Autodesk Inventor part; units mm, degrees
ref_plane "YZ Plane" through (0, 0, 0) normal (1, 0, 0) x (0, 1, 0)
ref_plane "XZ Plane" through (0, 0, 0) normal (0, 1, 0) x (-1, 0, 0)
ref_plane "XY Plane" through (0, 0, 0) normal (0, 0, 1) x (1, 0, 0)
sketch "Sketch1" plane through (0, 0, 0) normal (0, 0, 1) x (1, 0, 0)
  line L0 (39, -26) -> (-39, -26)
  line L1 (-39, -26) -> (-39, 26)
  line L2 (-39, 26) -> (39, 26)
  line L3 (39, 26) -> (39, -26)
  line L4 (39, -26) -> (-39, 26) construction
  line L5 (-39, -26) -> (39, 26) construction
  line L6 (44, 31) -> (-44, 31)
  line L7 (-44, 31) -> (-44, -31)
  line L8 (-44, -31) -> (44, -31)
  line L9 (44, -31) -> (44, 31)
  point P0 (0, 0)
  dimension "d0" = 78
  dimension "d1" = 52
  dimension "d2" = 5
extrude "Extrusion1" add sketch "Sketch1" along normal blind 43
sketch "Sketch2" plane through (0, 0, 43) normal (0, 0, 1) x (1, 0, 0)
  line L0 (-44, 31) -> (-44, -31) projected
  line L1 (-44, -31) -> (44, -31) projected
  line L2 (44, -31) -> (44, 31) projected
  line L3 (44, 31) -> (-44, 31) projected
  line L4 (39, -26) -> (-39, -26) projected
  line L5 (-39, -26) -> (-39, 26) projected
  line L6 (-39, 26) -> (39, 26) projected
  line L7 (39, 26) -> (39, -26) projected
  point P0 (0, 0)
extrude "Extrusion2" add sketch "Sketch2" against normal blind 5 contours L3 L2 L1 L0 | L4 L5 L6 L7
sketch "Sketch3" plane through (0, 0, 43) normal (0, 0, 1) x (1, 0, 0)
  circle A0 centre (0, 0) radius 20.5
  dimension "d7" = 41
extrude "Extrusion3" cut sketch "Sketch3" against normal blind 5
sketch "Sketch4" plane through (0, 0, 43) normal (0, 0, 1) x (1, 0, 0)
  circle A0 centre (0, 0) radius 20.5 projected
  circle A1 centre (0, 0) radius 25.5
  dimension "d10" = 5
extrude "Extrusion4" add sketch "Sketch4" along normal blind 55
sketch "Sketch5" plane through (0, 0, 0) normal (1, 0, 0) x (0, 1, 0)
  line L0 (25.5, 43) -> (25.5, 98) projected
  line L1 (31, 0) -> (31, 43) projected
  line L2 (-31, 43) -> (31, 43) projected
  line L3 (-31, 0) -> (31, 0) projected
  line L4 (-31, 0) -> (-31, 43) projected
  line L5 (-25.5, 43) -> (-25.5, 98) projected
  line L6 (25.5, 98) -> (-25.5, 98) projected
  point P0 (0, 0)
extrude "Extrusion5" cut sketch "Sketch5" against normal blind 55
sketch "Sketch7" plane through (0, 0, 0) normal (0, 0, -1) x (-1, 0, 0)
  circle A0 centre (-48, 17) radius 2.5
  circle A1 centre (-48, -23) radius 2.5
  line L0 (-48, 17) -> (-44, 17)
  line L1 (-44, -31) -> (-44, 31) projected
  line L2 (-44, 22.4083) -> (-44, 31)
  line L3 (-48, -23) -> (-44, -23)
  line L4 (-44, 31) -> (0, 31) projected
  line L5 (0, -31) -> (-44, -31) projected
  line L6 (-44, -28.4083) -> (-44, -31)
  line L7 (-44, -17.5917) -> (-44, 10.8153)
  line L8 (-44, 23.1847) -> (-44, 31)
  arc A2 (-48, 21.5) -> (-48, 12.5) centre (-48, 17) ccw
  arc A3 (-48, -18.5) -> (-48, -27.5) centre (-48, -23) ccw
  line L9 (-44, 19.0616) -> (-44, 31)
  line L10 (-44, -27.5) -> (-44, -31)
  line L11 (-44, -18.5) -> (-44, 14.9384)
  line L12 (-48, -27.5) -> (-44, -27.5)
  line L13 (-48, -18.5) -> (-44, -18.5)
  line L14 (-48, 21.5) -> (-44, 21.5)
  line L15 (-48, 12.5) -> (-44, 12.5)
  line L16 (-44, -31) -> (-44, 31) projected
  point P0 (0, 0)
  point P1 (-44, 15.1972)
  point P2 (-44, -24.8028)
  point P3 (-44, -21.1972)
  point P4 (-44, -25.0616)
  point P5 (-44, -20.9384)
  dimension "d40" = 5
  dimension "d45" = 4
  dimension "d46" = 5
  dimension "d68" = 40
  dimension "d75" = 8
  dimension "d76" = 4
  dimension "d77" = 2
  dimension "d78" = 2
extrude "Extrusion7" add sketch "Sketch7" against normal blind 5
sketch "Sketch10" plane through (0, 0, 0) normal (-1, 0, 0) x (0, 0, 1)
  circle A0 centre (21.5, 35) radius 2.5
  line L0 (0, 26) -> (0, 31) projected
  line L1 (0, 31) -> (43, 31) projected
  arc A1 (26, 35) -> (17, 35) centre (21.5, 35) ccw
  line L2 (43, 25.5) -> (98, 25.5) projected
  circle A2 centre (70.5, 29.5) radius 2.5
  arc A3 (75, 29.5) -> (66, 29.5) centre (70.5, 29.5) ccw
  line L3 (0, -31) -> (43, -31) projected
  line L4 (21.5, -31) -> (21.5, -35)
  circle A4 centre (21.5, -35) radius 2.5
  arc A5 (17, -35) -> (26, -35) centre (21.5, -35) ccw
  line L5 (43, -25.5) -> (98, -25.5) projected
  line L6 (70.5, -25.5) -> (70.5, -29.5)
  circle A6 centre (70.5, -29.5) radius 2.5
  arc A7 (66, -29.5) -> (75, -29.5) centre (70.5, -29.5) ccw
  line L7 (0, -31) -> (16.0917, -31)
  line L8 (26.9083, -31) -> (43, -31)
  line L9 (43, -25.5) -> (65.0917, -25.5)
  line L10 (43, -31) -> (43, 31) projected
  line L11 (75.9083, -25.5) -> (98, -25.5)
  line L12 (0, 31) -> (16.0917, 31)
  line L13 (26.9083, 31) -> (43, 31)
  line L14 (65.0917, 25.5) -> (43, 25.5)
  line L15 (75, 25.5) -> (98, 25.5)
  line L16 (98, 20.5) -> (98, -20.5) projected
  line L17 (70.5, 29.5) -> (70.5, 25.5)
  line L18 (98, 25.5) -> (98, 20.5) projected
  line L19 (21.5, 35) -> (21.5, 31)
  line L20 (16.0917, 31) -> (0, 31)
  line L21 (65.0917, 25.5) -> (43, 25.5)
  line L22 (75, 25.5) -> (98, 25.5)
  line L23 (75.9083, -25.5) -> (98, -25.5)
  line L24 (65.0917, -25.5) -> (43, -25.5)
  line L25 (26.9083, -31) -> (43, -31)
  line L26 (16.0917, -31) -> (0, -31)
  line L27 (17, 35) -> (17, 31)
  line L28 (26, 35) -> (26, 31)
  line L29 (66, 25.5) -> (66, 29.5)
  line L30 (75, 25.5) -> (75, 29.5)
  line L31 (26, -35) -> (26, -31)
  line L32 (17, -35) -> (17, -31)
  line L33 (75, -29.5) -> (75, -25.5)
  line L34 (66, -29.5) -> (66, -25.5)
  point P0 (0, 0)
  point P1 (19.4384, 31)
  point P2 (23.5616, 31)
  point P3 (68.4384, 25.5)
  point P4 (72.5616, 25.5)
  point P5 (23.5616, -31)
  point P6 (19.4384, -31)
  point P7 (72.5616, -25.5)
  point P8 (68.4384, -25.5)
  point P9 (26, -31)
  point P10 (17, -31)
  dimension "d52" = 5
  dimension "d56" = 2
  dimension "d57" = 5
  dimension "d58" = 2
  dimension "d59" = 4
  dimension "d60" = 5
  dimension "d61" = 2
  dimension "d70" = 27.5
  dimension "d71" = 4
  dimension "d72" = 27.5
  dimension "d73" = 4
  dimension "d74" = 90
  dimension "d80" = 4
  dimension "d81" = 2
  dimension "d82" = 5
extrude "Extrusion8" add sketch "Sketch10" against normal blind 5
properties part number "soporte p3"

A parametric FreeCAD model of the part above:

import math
import FreeCAD as App
import Part
import Sketcher
Q = App.Units.Quantity

doc = App.newDocument("Part")
body = doc.addObject("PartDesign::Body", "Body")
body.AllowCompound = True

sketch1 = body.newObject("Sketcher::SketchObject", "Sketch")
sketch1.AttachmentSupport = (doc.getObject("XY_Plane"), [""])
sketch1.MapMode = "FlatFace"
sketch1.addGeometry(Part.LineSegment(App.Vector(44, -31, 0), App.Vector(44, 31, 0)), False)
sketch1.addGeometry(Part.LineSegment(App.Vector(44, 31, 0), App.Vector(-44, 31, 0)), False)
sketch1.addGeometry(Part.LineSegment(App.Vector(-44, 31, 0), App.Vector(-44, -31, 0)), False)
sketch1.addGeometry(Part.LineSegment(App.Vector(-44, -31, 0), App.Vector(44, -31, 0)), False)
sketch1.addGeometry(Part.LineSegment(App.Vector(39, 26, 0), App.Vector(39, -26, 0)), False)
sketch1.addGeometry(Part.LineSegment(App.Vector(39, -26, 0), App.Vector(-39, -26, 0)), False)
sketch1.addGeometry(Part.LineSegment(App.Vector(-39, -26, 0), App.Vector(-39, 26, 0)), False)
sketch1.addGeometry(Part.LineSegment(App.Vector(-39, 26, 0), App.Vector(39, 26, 0)), False)
sketch1.addConstraint(Sketcher.Constraint("Coincident", 0, 2, 1, 1))
sketch1.addConstraint(Sketcher.Constraint("Coincident", 1, 2, 2, 1))
sketch1.addConstraint(Sketcher.Constraint("Coincident", 2, 2, 3, 1))
sketch1.addConstraint(Sketcher.Constraint("Coincident", 3, 2, 0, 1))
sketch1.addConstraint(Sketcher.Constraint("Coincident", 4, 2, 5, 1))
sketch1.addConstraint(Sketcher.Constraint("Coincident", 5, 2, 6, 1))
sketch1.addConstraint(Sketcher.Constraint("Coincident", 6, 2, 7, 1))
sketch1.addConstraint(Sketcher.Constraint("Coincident", 7, 2, 4, 1))
sketch1.addConstraint(Sketcher.Constraint("Vertical", 0))
sketch1.addConstraint(Sketcher.Constraint("Horizontal", 1))
sketch1.addConstraint(Sketcher.Constraint("Vertical", 2))
sketch1.addConstraint(Sketcher.Constraint("Horizontal", 3))
sketch1.addConstraint(Sketcher.Constraint("Vertical", 4))
sketch1.addConstraint(Sketcher.Constraint("Horizontal", 5))
sketch1.addConstraint(Sketcher.Constraint("Vertical", 6))
sketch1.addConstraint(Sketcher.Constraint("Horizontal", 7))
sketch1.addConstraint(Sketcher.Constraint("Symmetric", 0, 2, 2, 2, -1, 1))
sketch1.addConstraint(Sketcher.Constraint("Symmetric", 4, 2, 6, 2, -1, 1))
sketch1.addConstraint(Sketcher.Constraint("DistanceX", 5, 2, 5, 1, Q("78 mm")))
sketch1.addConstraint(Sketcher.Constraint("DistanceY", 4, 2, 4, 1, Q("52 mm")))
sketch1.addConstraint(Sketcher.Constraint("DistanceX", 4, 2, 3, 2, Q("5 mm")))
sketch1.addConstraint(Sketcher.Constraint("DistanceY", 3, 2, 4, 2, Q("5 mm")))
pad1 = body.newObject("PartDesign::Pad", "Pad")
pad1.Profile = sketch1
pad1.Length = 43

sketch2 = body.newObject("Sketcher::SketchObject", "Sketch001")
sketch2.AttachmentSupport = (doc.getObject("XY_Plane"), [""])
sketch2.MapMode = "FlatFace"
sketch2.AttachmentOffset = App.Placement(App.Vector(0, 0, 43), App.Rotation())
sketch2.addGeometry(Part.LineSegment(App.Vector(44, 31, 0), App.Vector(-44, 31, 0)), False)
sketch2.addGeometry(Part.LineSegment(App.Vector(-44, 31, 0), App.Vector(-44, -31, 0)), False)
sketch2.addGeometry(Part.LineSegment(App.Vector(-44, -31, 0), App.Vector(44, -31, 0)), False)
sketch2.addGeometry(Part.LineSegment(App.Vector(44, -31, 0), App.Vector(44, 31, 0)), False)
sketch2.addConstraint(Sketcher.Constraint("Coincident", 0, 2, 1, 1))
sketch2.addConstraint(Sketcher.Constraint("Coincident", 1, 2, 2, 1))
sketch2.addConstraint(Sketcher.Constraint("Coincident", 2, 2, 3, 1))
sketch2.addConstraint(Sketcher.Constraint("Coincident", 3, 2, 0, 1))
sketch2.addConstraint(Sketcher.Constraint("Horizontal", 0))
sketch2.addConstraint(Sketcher.Constraint("Vertical", 1))
sketch2.addConstraint(Sketcher.Constraint("Horizontal", 2))
sketch2.addConstraint(Sketcher.Constraint("Vertical", 3))
sketch2.addConstraint(Sketcher.Constraint("Symmetric", 0, 2, 2, 2, -1, 1))
sketch2.addConstraint(Sketcher.Constraint("DistanceX", 0, 2, 0, 1, Q("88 mm")))
sketch2.addConstraint(Sketcher.Constraint("DistanceY", 1, 2, 1, 1, Q("62 mm")))
pad2 = body.newObject("PartDesign::Pad", "Pad001")
pad2.Profile = sketch2
pad2.Length = 5
pad2.Reversed = True

sketch3 = body.newObject("Sketcher::SketchObject", "Sketch002")
sketch3.AttachmentSupport = (doc.getObject("XY_Plane"), [""])
sketch3.MapMode = "FlatFace"
sketch3.AttachmentOffset = App.Placement(App.Vector(0, 0, 43), App.Rotation())
sketch3.addGeometry(Part.Circle(App.Vector(0, 0, 0), App.Vector(0, 0, 1), 20.5), False)
sketch3.addConstraint(Sketcher.Constraint("Coincident", 0, 3, -1, 1))
sketch3.addConstraint(Sketcher.Constraint("Diameter", 0, Q("41 mm")))
pocket1 = body.newObject("PartDesign::Pocket", "Pocket")
pocket1.Profile = sketch3
pocket1.Length = 5

sketch4 = body.newObject("Sketcher::SketchObject", "Sketch003")
sketch4.AttachmentSupport = (doc.getObject("XY_Plane"), [""])
sketch4.MapMode = "FlatFace"
sketch4.AttachmentOffset = App.Placement(App.Vector(0, 0, 43), App.Rotation())
sketch4.addGeometry(Part.Circle(App.Vector(0, 0, 0), App.Vector(0, 0, 1), 25.5), False)
sketch4.addGeometry(Part.Circle(App.Vector(0, 0, 0), App.Vector(0, 0, 1), 20.5), False)
sketch4.addConstraint(Sketcher.Constraint("Coincident", 0, 3, -1, 1))
sketch4.addConstraint(Sketcher.Constraint("Coincident", 1, 3, -1, 1))
sketch4.addConstraint(Sketcher.Constraint("Diameter", 0, Q("51 mm")))
sketch4.addConstraint(Sketcher.Constraint("Diameter", 1, Q("41 mm")))
pad3 = body.newObject("PartDesign::Pad", "Pad002")
pad3.Profile = sketch4
pad3.Length = 55

sketch5 = body.newObject("Sketcher::SketchObject", "Sketch004")
sketch5.AttachmentSupport = (doc.getObject("YZ_Plane"), [""])
sketch5.MapMode = "FlatFace"
sketch5.addGeometry(Part.LineSegment(App.Vector(-25.5, 98, 0), App.Vector(-25.5, 43, 0)), False)
sketch5.addGeometry(Part.LineSegment(App.Vector(-25.5, 43, 0), App.Vector(-31, 43, 0)), False)
sketch5.addGeometry(Part.LineSegment(App.Vector(-31, 43, 0), App.Vector(-31, 0, 0)), False)
sketch5.addGeometry(Part.LineSegment(App.Vector(-31, 0, 0), App.Vector(31, 0, 0)), False)
sketch5.addGeometry(Part.LineSegment(App.Vector(31, 0, 0), App.Vector(31, 43, 0)), False)
sketch5.addGeometry(Part.LineSegment(App.Vector(31, 43, 0), App.Vector(25.5, 43, 0)), False)
sketch5.addGeometry(Part.LineSegment(App.Vector(25.5, 43, 0), App.Vector(25.5, 98, 0)), False)
sketch5.addGeometry(Part.LineSegment(App.Vector(25.5, 98, 0), App.Vector(-25.5, 98, 0)), False)
sketch5.addConstraint(Sketcher.Constraint("Coincident", 0, 2, 1, 1))
sketch5.addConstraint(Sketcher.Constraint("Coincident", 1, 2, 2, 1))
sketch5.addConstraint(Sketcher.Constraint("Coincident", 2, 2, 3, 1))
sketch5.addConstraint(Sketcher.Constraint("Coincident", 3, 2, 4, 1))
sketch5.addConstraint(Sketcher.Constraint("Coincident", 4, 2, 5, 1))
sketch5.addConstraint(Sketcher.Constraint("Coincident", 5, 2, 6, 1))
sketch5.addConstraint(Sketcher.Constraint("Coincident", 6, 2, 7, 1))
sketch5.addConstraint(Sketcher.Constraint("Coincident", 7, 2, 0, 1))
sketch5.addConstraint(Sketcher.Constraint("Vertical", 0))
sketch5.addConstraint(Sketcher.Constraint("Horizontal", 1))
sketch5.addConstraint(Sketcher.Constraint("Vertical", 2))
sketch5.addConstraint(Sketcher.Constraint("Horizontal", 3))
sketch5.addConstraint(Sketcher.Constraint("Vertical", 4))
sketch5.addConstraint(Sketcher.Constraint("Horizontal", 5))
sketch5.addConstraint(Sketcher.Constraint("Vertical", 6))
sketch5.addConstraint(Sketcher.Constraint("Horizontal", 7))
sketch5.addConstraint(Sketcher.Constraint("Symmetric", 2, 2, 3, 2, -1, 1))
sketch5.addConstraint(Sketcher.Constraint("Symmetric", 0, 2, 5, 2, -2))
sketch5.addConstraint(Sketcher.Constraint("DistanceX", 3, 1, 3, 2, Q("62 mm")))
sketch5.addConstraint(Sketcher.Constraint("DistanceX", 7, 2, 7, 1, Q("51 mm")))
sketch5.addConstraint(Sketcher.Constraint("DistanceY", 0, 2, 0, 1, Q("55 mm")))
sketch5.addConstraint(Sketcher.Constraint("DistanceY", 2, 2, 2, 1, Q("43 mm")))
pocket2 = body.newObject("PartDesign::Pocket", "Pocket001")
pocket2.Profile = sketch5
pocket2.Length = 55

sketch6 = body.newObject("Sketcher::SketchObject", "Sketch005")
sketch6.AttachmentSupport = (doc.getObject("XY_Plane"), [""])
sketch6.MapMode = "FlatFace"
sketch6.addGeometry(Part.LineSegment(App.Vector(44, 12.5, 0), App.Vector(44, 17, 0)), False)
sketch6.addGeometry(Part.LineSegment(App.Vector(44, 17, 0), App.Vector(44, 21.5, 0)), False)
sketch6.addGeometry(Part.LineSegment(App.Vector(44, 21.5, 0), App.Vector(48, 21.5, 0)), False)
sketch6.addGeometry(Part.ArcOfCircle(Part.Circle(App.Vector(48, 17, 0), App.Vector(0, 0, 1), 4.5), math.radians(-90), math.radians(90)), False)
sketch6.addGeometry(Part.LineSegment(App.Vector(48, 12.5, 0), App.Vector(44, 12.5, 0)), False)
sketch6.addGeometry(Part.Circle(App.Vector(48, 17, 0), App.Vector(0, 0, 1), 2.5), False)
sketch6.addGeometry(Part.LineSegment(App.Vector(44, -23, 0), App.Vector(44, -18.5, 0)), False)
sketch6.addGeometry(Part.LineSegment(App.Vector(44, -18.5, 0), App.Vector(48, -18.5, 0)), False)
sketch6.addGeometry(Part.ArcOfCircle(Part.Circle(App.Vector(48, -23, 0), App.Vector(0, 0, 1), 4.5), math.radians(-90), math.radians(90)), False)
sketch6.addGeometry(Part.LineSegment(App.Vector(48, -27.5, 0), App.Vector(44, -27.5, 0)), False)
sketch6.addGeometry(Part.LineSegment(App.Vector(44, -27.5, 0), App.Vector(44, -23, 0)), False)
sketch6.addGeometry(Part.Circle(App.Vector(48, -23, 0), App.Vector(0, 0, 1), 2.5), False)
sketch6.addConstraint(Sketcher.Constraint("Coincident", 0, 2, 1, 1))
sketch6.addConstraint(Sketcher.Constraint("Coincident", 1, 2, 2, 1))
sketch6.addConstraint(Sketcher.Constraint("Tangent", 2, 2, 3, 2))
sketch6.addConstraint(Sketcher.Constraint("Tangent", 3, 1, 4, 1))
sketch6.addConstraint(Sketcher.Constraint("Coincident", 4, 2, 0, 1))
sketch6.addConstraint(Sketcher.Constraint("Coincident", 6, 2, 7, 1))
sketch6.addConstraint(Sketcher.Constraint("Tangent", 7, 2, 8, 2))
sketch6.addConstraint(Sketcher.Constraint("Tangent", 8, 1, 9, 1))
sketch6.addConstraint(Sketcher.Constraint("Coincident", 9, 2, 10, 1))
sketch6.addConstraint(Sketcher.Constraint("Coincident", 10, 2, 6, 1))
sketch6.addConstraint(Sketcher.Constraint("Vertical", 0))
sketch6.addConstraint(Sketcher.Constraint("Vertical", 1))
sketch6.addConstraint(Sketcher.Constraint("Horizontal", 2))
sketch6.addConstraint(Sketcher.Constraint("Horizontal", 4))
sketch6.addConstraint(Sketcher.Constraint("Vertical", 6))
sketch6.addConstraint(Sketcher.Constraint("Horizontal", 7))
sketch6.addConstraint(Sketcher.Constraint("Horizontal", 9))
sketch6.addConstraint(Sketcher.Constraint("Vertical", 10))
sketch6.addConstraint(Sketcher.Constraint("Coincident", 5, 3, 3, 3))
sketch6.addConstraint(Sketcher.Constraint("Coincident", 11, 3, 8, 3))
sketch6.addConstraint(Sketcher.Constraint("Equal", 3, 8))
sketch6.addConstraint(Sketcher.Constraint("Equal", 5, 11))
sketch6.addConstraint(Sketcher.Constraint("Horizontal", 5, 3, 0, 2))
sketch6.addConstraint(Sketcher.Constraint("Horizontal", 11, 3, 10, 2))
sketch6.addConstraint(Sketcher.Constraint("Vertical", 5, 3, 8, 3))
sketch6.addConstraint(Sketcher.Constraint("Vertical", 4, 2, 6, 2))
sketch6.addConstraint(Sketcher.Constraint("Diameter", 5, Q("5 mm")))
sketch6.addConstraint(Sketcher.Constraint("DistanceX", 2, 1, 2, 2, Q("4 mm")))
sketch6.addConstraint(Sketcher.Constraint("DistanceY", 8, 3, 3, 3, Q("40 mm")))
sketch6.addConstraint(Sketcher.Constraint("Radius", 3, Q("4.5 mm")))
sketch6.addConstraint(Sketcher.Constraint("DistanceX", -1, 1, 3, 3, Q("48 mm")))
sketch6.addConstraint(Sketcher.Constraint("DistanceY", -1, 1, 3, 3, Q("17 mm")))
pad4 = body.newObject("PartDesign::Pad", "Pad003")
pad4.Profile = sketch6
pad4.Length = 5

sketch7 = body.newObject("Sketcher::SketchObject", "Sketch006")
sketch7.AttachmentSupport = (doc.getObject("YZ_Plane"), [""])
sketch7.MapMode = "FlatFace"
sketch7.addGeometry(Part.LineSegment(App.Vector(31, 17, 0), App.Vector(31, 21.5, 0)), False)
sketch7.addGeometry(Part.LineSegment(App.Vector(31, 21.5, 0), App.Vector(31, 26, 0)), False)
sketch7.addGeometry(Part.LineSegment(App.Vector(31, 26, 0), App.Vector(35, 26, 0)), False)
sketch7.addGeometry(Part.ArcOfCircle(Part.Circle(App.Vector(35, 21.5, 0), App.Vector(0, 0, 1), 4.5), math.radians(-90), math.radians(90)), False)
sketch7.addGeometry(Part.LineSegment(App.Vector(35, 17, 0), App.Vector(31, 17, 0)), False)
sketch7.addGeometry(Part.Circle(App.Vector(35, 21.5, 0), App.Vector(0, 0, 1), 2.5), False)
sketch7.addGeometry(Part.LineSegment(App.Vector(29.5, 66, 0), App.Vector(25.5, 66, 0)), False)
sketch7.addGeometry(Part.LineSegment(App.Vector(25.5, 66, 0), App.Vector(25.5, 70.5, 0)), False)
sketch7.addGeometry(Part.LineSegment(App.Vector(25.5, 70.5, 0), App.Vector(25.5, 75, 0)), False)
sketch7.addGeometry(Part.LineSegment(App.Vector(25.5, 75, 0), App.Vector(29.5, 75, 0)), False)
sketch7.addGeometry(Part.ArcOfCircle(Part.Circle(App.Vector(29.5, 70.5, 0), App.Vector(0, 0, 1), 4.5), math.radians(-90), math.radians(90)), False)
sketch7.addGeometry(Part.Circle(App.Vector(29.5, 70.5, 0), App.Vector(0, 0, 1), 2.5), False)
sketch7.addGeometry(Part.LineSegment(App.Vector(-25.5, 70.5, 0), App.Vector(-25.5, 66, 0)), False)
sketch7.addGeometry(Part.LineSegment(App.Vector(-25.5, 66, 0), App.Vector(-29.5, 66, 0)), False)
sketch7.addGeometry(Part.ArcOfCircle(Part.Circle(App.Vector(-29.5, 70.5, 0), App.Vector(0, 0, 1), 4.5), math.radians(90), math.radians(270)), False)
sketch7.addGeometry(Part.LineSegment(App.Vector(-29.5, 75, 0), App.Vector(-25.5, 75, 0)), False)
sketch7.addGeometry(Part.LineSegment(App.Vector(-25.5, 75, 0), App.Vector(-25.5, 70.5, 0)), False)
sketch7.addGeometry(Part.Circle(App.Vector(-29.5, 70.5, 0), App.Vector(0, 0, 1), 2.5), False)
sketch7.addGeometry(Part.LineSegment(App.Vector(-35, 26, 0), App.Vector(-31, 26, 0)), False)
sketch7.addGeometry(Part.LineSegment(App.Vector(-31, 26, 0), App.Vector(-31, 21.5, 0)), False)
sketch7.addGeometry(Part.LineSegment(App.Vector(-31, 21.5, 0), App.Vector(-31, 17, 0)), False)
sketch7.addGeometry(Part.LineSegment(App.Vector(-31, 17, 0), App.Vector(-35, 17, 0)), False)
sketch7.addGeometry(Part.ArcOfCircle(Part.Circle(App.Vector(-35, 21.5, 0), App.Vector(0, 0, 1), 4.5), math.radians(90), math.radians(270)), False)
sketch7.addGeometry(Part.Circle(App.Vector(-35, 21.5, 0), App.Vector(0, 0, 1), 2.5), False)
sketch7.addConstraint(Sketcher.Constraint("Coincident", 0, 2, 1, 1))
sketch7.addConstraint(Sketcher.Constraint("Coincident", 1, 2, 2, 1))
sketch7.addConstraint(Sketcher.Constraint("Tangent", 2, 2, 3, 2))
sketch7.addConstraint(Sketcher.Constraint("Tangent", 3, 1, 4, 1))
sketch7.addConstraint(Sketcher.Constraint("Coincident", 4, 2, 0, 1))
sketch7.addConstraint(Sketcher.Constraint("Coincident", 6, 2, 7, 1))
sketch7.addConstraint(Sketcher.Constraint("Coincident", 7, 2, 8, 1))
sketch7.addConstraint(Sketcher.Constraint("Coincident", 8, 2, 9, 1))
sketch7.addConstraint(Sketcher.Constraint("Tangent", 9, 2, 10, 2))
sketch7.addConstraint(Sketcher.Constraint("Tangent", 10, 1, 6, 1))
sketch7.addConstraint(Sketcher.Constraint("Coincident", 12, 2, 13, 1))
sketch7.addConstraint(Sketcher.Constraint("Tangent", 13, 2, 14, 2))
sketch7.addConstraint(Sketcher.Constraint("Tangent", 14, 1, 15, 1))
sketch7.addConstraint(Sketcher.Constraint("Coincident", 15, 2, 16, 1))
sketch7.addConstraint(Sketcher.Constraint("Coincident", 16, 2, 12, 1))
sketch7.addConstraint(Sketcher.Constraint("Coincident", 18, 2, 19, 1))
sketch7.addConstraint(Sketcher.Constraint("Coincident", 19, 2, 20, 1))
sketch7.addConstraint(Sketcher.Constraint("Coincident", 20, 2, 21, 1))
sketch7.addConstraint(Sketcher.Constraint("Tangent", 21, 2, 22, 2))
sketch7.addConstraint(Sketcher.Constraint("Tangent", 22, 1, 18, 1))
sketch7.addConstraint(Sketcher.Constraint("Vertical", 0))
sketch7.addConstraint(Sketcher.Constraint("Vertical", 1))
sketch7.addConstraint(Sketcher.Constraint("Horizontal", 2))
sketch7.addConstraint(Sketcher.Constraint("Horizontal", 4))
sketch7.addConstraint(Sketcher.Constraint("Horizontal", 6))
sketch7.addConstraint(Sketcher.Constraint("Vertical", 7))
sketch7.addConstraint(Sketcher.Constraint("Vertical", 8))
sketch7.addConstraint(Sketcher.Constraint("Horizontal", 9))
sketch7.addConstraint(Sketcher.Constraint("Vertical", 12))
sketch7.addConstraint(Sketcher.Constraint("Horizontal", 13))
sketch7.addConstraint(Sketcher.Constraint("Horizontal", 15))
sketch7.addConstraint(Sketcher.Constraint("Vertical", 16))
sketch7.addConstraint(Sketcher.Constraint("Horizontal", 18))
sketch7.addConstraint(Sketcher.Constraint("Vertical", 19))
sketch7.addConstraint(Sketcher.Constraint("Vertical", 20))
sketch7.addConstraint(Sketcher.Constraint("Horizontal", 21))
sketch7.addConstraint(Sketcher.Constraint("Coincident", 5, 3, 3, 3))
sketch7.addConstraint(Sketcher.Constraint("Coincident", 11, 3, 10, 3))
sketch7.addConstraint(Sketcher.Constraint("Coincident", 17, 3, 14, 3))
sketch7.addConstraint(Sketcher.Constraint("Coincident", 23, 3, 22, 3))
sketch7.addConstraint(Sketcher.Constraint("Equal", 3, 10))
sketch7.addConstraint(Sketcher.Constraint("Equal", 5, 11))
sketch7.addConstraint(Sketcher.Constraint("Equal", 10, 14))
sketch7.addConstraint(Sketcher.Constraint("Equal", 11, 17))
sketch7.addConstraint(Sketcher.Constraint("Equal", 14, 22))
sketch7.addConstraint(Sketcher.Constraint("Equal", 17, 23))
sketch7.addConstraint(Sketcher.Constraint("Symmetric", 10, 3, 14, 3, -2))
sketch7.addConstraint(Sketcher.Constraint("Symmetric", 3, 3, 22, 3, -2))
sketch7.addConstraint(Sketcher.Constraint("Symmetric", 7, 2, 16, 2, -2))
sketch7.addConstraint(Sketcher.Constraint("Symmetric", 0, 2, 19, 2, -2))
sketch7.addConstraint(Sketcher.Constraint("Horizontal", 23, 3, 0, 2))
sketch7.addConstraint(Sketcher.Constraint("Horizontal", 17, 3, 7, 2))
sketch7.addConstraint(Sketcher.Constraint("Equal", 4, 6))
sketch7.addConstraint(Sketcher.Constraint("Diameter", 5, Q("5 mm")))
sketch7.addConstraint(Sketcher.Constraint("DistanceX", 2, 1, 2, 2, Q("4 mm")))
sketch7.addConstraint(Sketcher.Constraint("Radius", 3, Q("4.5 mm")))
sketch7.addConstraint(Sketcher.Constraint("DistanceX", -1, 1, 3, 3, Q("35 mm")))
sketch7.addConstraint(Sketcher.Constraint("DistanceY", -1, 1, 1, 2, Q("26 mm")))
sketch7.addConstraint(Sketcher.Constraint("DistanceY", -1, 1, 6, 2, Q("66 mm")))
sketch7.addConstraint(Sketcher.Constraint("DistanceX", 14, 3, 10, 3, Q("59 mm")))
pad5 = body.newObject("PartDesign::Pad", "Pad004")
pad5.Profile = sketch7
pad5.Length = 5

doc.recompute()
